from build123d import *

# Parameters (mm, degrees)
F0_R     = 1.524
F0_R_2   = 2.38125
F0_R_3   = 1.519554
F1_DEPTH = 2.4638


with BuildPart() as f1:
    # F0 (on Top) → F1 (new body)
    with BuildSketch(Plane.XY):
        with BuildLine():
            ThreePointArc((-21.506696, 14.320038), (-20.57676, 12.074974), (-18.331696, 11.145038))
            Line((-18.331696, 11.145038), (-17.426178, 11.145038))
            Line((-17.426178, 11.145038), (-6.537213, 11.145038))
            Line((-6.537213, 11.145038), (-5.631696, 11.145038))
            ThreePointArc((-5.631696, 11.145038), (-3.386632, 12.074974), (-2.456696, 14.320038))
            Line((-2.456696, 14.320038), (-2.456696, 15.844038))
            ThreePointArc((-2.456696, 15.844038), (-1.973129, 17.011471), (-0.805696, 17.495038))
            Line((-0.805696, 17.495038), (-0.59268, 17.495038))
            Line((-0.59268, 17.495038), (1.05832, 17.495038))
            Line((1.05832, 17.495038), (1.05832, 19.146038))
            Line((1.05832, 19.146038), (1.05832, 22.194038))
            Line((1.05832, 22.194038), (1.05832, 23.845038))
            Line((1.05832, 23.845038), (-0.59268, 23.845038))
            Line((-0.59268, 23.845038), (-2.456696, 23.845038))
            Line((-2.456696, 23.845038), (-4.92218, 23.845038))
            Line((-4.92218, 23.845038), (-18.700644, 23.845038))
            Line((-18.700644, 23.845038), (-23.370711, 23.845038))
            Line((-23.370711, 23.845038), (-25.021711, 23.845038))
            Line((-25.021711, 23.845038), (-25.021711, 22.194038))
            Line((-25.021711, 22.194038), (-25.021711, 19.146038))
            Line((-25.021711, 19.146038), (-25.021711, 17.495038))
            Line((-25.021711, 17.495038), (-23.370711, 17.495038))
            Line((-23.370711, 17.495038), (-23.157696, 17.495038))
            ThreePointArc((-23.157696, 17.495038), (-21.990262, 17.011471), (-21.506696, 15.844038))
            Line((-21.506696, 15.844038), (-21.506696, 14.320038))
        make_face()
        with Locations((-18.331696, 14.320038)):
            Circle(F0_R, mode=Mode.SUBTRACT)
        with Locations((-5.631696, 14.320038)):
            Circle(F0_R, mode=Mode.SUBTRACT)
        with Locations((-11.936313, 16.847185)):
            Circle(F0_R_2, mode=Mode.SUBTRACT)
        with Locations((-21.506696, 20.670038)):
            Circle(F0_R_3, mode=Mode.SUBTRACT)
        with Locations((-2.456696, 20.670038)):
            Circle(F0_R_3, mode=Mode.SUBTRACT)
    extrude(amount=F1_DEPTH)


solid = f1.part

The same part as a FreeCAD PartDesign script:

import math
import FreeCAD as App
import Part
import Sketcher
from FreeCAD import Vector
Q = App.Units.Quantity

doc = App.newDocument("Part")
params = doc.addObject("Spreadsheet::Sheet", "Params")
for row, (alias, value) in enumerate([
    ("sketch1_diameter", "0.12 in"),
    ("sketch1_diameter2", "0.1875 in"),
    ("sketch1_width", "0.5 in"),
    ("sketch1_radius", "0.125 in"),
    ("sketch1_radius2", "0.065 in"),
    ("pad1_length", "0.097 in"),
], start=1):
    params.set(f"A{row}", alias)
    params.set(f"B{row}", "=" + value)
    params.setAlias(f"B{row}", alias)

body = doc.addObject("PartDesign::Body", "Body")

# Sketch on XY plane
sketch1 = body.newObject("Sketcher::SketchObject", "Sketch")
sketch1.AttachmentSupport = (doc.getObject("XY_Plane"), [""])
sketch1.MapMode = "FlatFace"
sketch1.addGeometry(Part.ArcOfCircle(Part.Circle(Vector(-18.3, 14.3, 0), Vector(0, 0, 1), 3.2), math.radians(-180), math.radians(-90)), False)
sketch1.addGeometry(Part.LineSegment(Vector(-18.3, 11.1, 0), Vector(-5.6, 11.1, 0)), False)
sketch1.addGeometry(Part.ArcOfCircle(Part.Circle(Vector(-5.6, 14.3, 0), Vector(0, 0, 1), 3.2), math.radians(-90), math.radians(0)), False)
sketch1.addGeometry(Part.LineSegment(Vector(-2.5, 14.3, 0), Vector(-2.5, 15.8, 0)), False)
sketch1.addGeometry(Part.ArcOfCircle(Part.Circle(Vector(-0.8, 15.8, 0), Vector(0, 0, 1), 1.7), math.radians(90), math.radians(180)), False)
sketch1.addGeometry(Part.LineSegment(Vector(-0.8, 17.5, 0), Vector(1.1, 17.5, 0)), False)
sketch1.addGeometry(Part.LineSegment(Vector(1.1, 17.5, 0), Vector(1.1, 23.8, 0)), False)
sketch1.addGeometry(Part.LineSegment(Vector(1.1, 23.8, 0), Vector(-25, 23.8, 0)), False)
sketch1.addGeometry(Part.LineSegment(Vector(-25, 23.8, 0), Vector(-25, 17.5, 0)), False)
sketch1.addGeometry(Part.LineSegment(Vector(-25, 17.5, 0), Vector(-23.2, 17.5, 0)), False)
sketch1.addGeometry(Part.ArcOfCircle(Part.Circle(Vector(-23.2, 15.8, 0), Vector(0, 0, 1), 1.7), math.radians(0), math.radians(90)), False)
sketch1.addGeometry(Part.LineSegment(Vector(-21.5, 15.8, 0), Vector(-21.5, 14.3, 0)), False)
sketch1.addGeometry(Part.Circle(Vector(-18.3, 14.3, 0), Vector(0, 0, 1), 1.5), False)
sketch1.addGeometry(Part.Circle(Vector(-5.6, 14.3, 0), Vector(0, 0, 1), 1.5), False)
sketch1.addGeometry(Part.Circle(Vector(-11.9, 16.8, 0), Vector(0, 0, 1), 2.4), False)
sketch1.addGeometry(Part.Circle(Vector(-21.5, 20.7, 0), Vector(0, 0, 1), 1.5), False)
sketch1.addGeometry(Part.Circle(Vector(-2.5, 20.7, 0), Vector(0, 0, 1), 1.5), False)
sketch1.addConstraint(Sketcher.Constraint("Tangent", 0, 2, 1, 1))
sketch1.addConstraint(Sketcher.Constraint("Tangent", 1, 2, 2, 1))
sketch1.addConstraint(Sketcher.Constraint("Tangent", 2, 2, 3, 1))
sketch1.addConstraint(Sketcher.Constraint("Tangent", 3, 2, 4, 2))
sketch1.addConstraint(Sketcher.Constraint("Tangent", 4, 1, 5, 1))
sketch1.addConstraint(Sketcher.Constraint("Coincident", 5, 2, 6, 1))
sketch1.addConstraint(Sketcher.Constraint("Coincident", 6, 2, 7, 1))
sketch1.addConstraint(Sketcher.Constraint("Coincident", 7, 2, 8, 1))
sketch1.addConstraint(Sketcher.Constraint("Coincident", 8, 2, 9, 1))
sketch1.addConstraint(Sketcher.Constraint("Tangent", 9, 2, 10, 2))
sketch1.addConstraint(Sketcher.Constraint("Tangent", 10, 1, 11, 1))
sketch1.addConstraint(Sketcher.Constraint("Tangent", 11, 2, 0, 1))
sketch1.addConstraint(Sketcher.Constraint("Horizontal", 1))
sketch1.addConstraint(Sketcher.Constraint("Vertical", 3))
sketch1.addConstraint(Sketcher.Constraint("Horizontal", 5))
sketch1.addConstraint(Sketcher.Constraint("Vertical", 6))
sketch1.addConstraint(Sketcher.Constraint("Horizontal", 7))
sketch1.addConstraint(Sketcher.Constraint("Vertical", 8))
sketch1.addConstraint(Sketcher.Constraint("Horizontal", 9))
sketch1.addConstraint(Sketcher.Constraint("Vertical", 11))
sketch1.addConstraint(Sketcher.Constraint("Coincident", 12, 3, 0, 3))
sketch1.addConstraint(Sketcher.Constraint("Coincident", 13, 3, 2, 3))
sketch1.addConstraint(Sketcher.Constraint("Equal", 0, 2))
sketch1.addConstraint(Sketcher.Constraint("Equal", 4, 10))
sketch1.addConstraint(Sketcher.Constraint("Equal", 12, 13))
sketch1.addConstraint(Sketcher.Constraint("Equal", 15, 16))
sketch1.addConstraint(Sketcher.Constraint("Horizontal", 4, 3, 10, 3))
sketch1.addConstraint(Sketcher.Constraint("Horizontal", 15, 3, 16, 3))
sketch1.addConstraint(Sketcher.Constraint("Vertical", 16, 3, 2, 2))
sketch1.addConstraint(Sketcher.Constraint("Vertical", 15, 3, 10, 1))
sketch1.addConstraint(Sketcher.Constraint("Equal", 5, 9))
sketch1.addConstraint(Sketcher.Constraint("Diameter", 12, Q("0.12 in")))
sketch1.addConstraint(Sketcher.Constraint("Diameter", 14, Q("0.1875 in")))
sketch1.addConstraint(Sketcher.Constraint("DistanceX", 1, 1, 1, 2, Q("0.5 in")))
sketch1.addConstraint(Sketcher.Constraint("Radius", 0, Q("0.125 in")))
sketch1.addConstraint(Sketcher.Constraint("Radius", 4, Q("0.065 in")))
sketch1.addConstraint(Sketcher.Constraint("DistanceY", 3, 1, 3, 2, Q("0.06 in")))
sketch1.addConstraint(Sketcher.Constraint("DistanceY", 6, 1, 6, 2, Q("0.25 in")))
sketch1.addConstraint(Sketcher.Constraint("DistanceY", 10, 3, 15, 3, Q("0.19 in")))
sketch1.addConstraint(Sketcher.Constraint("Diameter", 15, 3.039108))
sketch1.addConstraint(Sketcher.Constraint("DistanceX", 7, 2, 7, 1, 26.080031))
sketch1.addConstraint(Sketcher.Constraint("DistanceY", -1, 1, 0, 3, 14.320038))
sketch1.addConstraint(Sketcher.Constraint("DistanceX", -1, 1, 5, 2, 1.05832))
sketch1.addConstraint(Sketcher.Constraint("DistanceX", 14, 3, 4, 3, 11.130618))
sketch1.addConstraint(Sketcher.Constraint("DistanceY", 4, 3, 14, 3, 1.003148))
sketch1.setExpression("Constraints[31]", "Params.sketch1_diameter")
sketch1.setExpression("Constraints[32]", "Params.sketch1_diameter2")
sketch1.setExpression("Constraints[33]", "Params.sketch1_width")
sketch1.setExpression("Constraints[34]", "Params.sketch1_radius")
sketch1.setExpression("Constraints[35]", "Params.sketch1_radius2")
pad1 = body.newObject("PartDesign::Pad", "Pad")
pad1.Profile = sketch1
pad1.setExpression("Length", "Params.pad1_length")

doc.recompute()
